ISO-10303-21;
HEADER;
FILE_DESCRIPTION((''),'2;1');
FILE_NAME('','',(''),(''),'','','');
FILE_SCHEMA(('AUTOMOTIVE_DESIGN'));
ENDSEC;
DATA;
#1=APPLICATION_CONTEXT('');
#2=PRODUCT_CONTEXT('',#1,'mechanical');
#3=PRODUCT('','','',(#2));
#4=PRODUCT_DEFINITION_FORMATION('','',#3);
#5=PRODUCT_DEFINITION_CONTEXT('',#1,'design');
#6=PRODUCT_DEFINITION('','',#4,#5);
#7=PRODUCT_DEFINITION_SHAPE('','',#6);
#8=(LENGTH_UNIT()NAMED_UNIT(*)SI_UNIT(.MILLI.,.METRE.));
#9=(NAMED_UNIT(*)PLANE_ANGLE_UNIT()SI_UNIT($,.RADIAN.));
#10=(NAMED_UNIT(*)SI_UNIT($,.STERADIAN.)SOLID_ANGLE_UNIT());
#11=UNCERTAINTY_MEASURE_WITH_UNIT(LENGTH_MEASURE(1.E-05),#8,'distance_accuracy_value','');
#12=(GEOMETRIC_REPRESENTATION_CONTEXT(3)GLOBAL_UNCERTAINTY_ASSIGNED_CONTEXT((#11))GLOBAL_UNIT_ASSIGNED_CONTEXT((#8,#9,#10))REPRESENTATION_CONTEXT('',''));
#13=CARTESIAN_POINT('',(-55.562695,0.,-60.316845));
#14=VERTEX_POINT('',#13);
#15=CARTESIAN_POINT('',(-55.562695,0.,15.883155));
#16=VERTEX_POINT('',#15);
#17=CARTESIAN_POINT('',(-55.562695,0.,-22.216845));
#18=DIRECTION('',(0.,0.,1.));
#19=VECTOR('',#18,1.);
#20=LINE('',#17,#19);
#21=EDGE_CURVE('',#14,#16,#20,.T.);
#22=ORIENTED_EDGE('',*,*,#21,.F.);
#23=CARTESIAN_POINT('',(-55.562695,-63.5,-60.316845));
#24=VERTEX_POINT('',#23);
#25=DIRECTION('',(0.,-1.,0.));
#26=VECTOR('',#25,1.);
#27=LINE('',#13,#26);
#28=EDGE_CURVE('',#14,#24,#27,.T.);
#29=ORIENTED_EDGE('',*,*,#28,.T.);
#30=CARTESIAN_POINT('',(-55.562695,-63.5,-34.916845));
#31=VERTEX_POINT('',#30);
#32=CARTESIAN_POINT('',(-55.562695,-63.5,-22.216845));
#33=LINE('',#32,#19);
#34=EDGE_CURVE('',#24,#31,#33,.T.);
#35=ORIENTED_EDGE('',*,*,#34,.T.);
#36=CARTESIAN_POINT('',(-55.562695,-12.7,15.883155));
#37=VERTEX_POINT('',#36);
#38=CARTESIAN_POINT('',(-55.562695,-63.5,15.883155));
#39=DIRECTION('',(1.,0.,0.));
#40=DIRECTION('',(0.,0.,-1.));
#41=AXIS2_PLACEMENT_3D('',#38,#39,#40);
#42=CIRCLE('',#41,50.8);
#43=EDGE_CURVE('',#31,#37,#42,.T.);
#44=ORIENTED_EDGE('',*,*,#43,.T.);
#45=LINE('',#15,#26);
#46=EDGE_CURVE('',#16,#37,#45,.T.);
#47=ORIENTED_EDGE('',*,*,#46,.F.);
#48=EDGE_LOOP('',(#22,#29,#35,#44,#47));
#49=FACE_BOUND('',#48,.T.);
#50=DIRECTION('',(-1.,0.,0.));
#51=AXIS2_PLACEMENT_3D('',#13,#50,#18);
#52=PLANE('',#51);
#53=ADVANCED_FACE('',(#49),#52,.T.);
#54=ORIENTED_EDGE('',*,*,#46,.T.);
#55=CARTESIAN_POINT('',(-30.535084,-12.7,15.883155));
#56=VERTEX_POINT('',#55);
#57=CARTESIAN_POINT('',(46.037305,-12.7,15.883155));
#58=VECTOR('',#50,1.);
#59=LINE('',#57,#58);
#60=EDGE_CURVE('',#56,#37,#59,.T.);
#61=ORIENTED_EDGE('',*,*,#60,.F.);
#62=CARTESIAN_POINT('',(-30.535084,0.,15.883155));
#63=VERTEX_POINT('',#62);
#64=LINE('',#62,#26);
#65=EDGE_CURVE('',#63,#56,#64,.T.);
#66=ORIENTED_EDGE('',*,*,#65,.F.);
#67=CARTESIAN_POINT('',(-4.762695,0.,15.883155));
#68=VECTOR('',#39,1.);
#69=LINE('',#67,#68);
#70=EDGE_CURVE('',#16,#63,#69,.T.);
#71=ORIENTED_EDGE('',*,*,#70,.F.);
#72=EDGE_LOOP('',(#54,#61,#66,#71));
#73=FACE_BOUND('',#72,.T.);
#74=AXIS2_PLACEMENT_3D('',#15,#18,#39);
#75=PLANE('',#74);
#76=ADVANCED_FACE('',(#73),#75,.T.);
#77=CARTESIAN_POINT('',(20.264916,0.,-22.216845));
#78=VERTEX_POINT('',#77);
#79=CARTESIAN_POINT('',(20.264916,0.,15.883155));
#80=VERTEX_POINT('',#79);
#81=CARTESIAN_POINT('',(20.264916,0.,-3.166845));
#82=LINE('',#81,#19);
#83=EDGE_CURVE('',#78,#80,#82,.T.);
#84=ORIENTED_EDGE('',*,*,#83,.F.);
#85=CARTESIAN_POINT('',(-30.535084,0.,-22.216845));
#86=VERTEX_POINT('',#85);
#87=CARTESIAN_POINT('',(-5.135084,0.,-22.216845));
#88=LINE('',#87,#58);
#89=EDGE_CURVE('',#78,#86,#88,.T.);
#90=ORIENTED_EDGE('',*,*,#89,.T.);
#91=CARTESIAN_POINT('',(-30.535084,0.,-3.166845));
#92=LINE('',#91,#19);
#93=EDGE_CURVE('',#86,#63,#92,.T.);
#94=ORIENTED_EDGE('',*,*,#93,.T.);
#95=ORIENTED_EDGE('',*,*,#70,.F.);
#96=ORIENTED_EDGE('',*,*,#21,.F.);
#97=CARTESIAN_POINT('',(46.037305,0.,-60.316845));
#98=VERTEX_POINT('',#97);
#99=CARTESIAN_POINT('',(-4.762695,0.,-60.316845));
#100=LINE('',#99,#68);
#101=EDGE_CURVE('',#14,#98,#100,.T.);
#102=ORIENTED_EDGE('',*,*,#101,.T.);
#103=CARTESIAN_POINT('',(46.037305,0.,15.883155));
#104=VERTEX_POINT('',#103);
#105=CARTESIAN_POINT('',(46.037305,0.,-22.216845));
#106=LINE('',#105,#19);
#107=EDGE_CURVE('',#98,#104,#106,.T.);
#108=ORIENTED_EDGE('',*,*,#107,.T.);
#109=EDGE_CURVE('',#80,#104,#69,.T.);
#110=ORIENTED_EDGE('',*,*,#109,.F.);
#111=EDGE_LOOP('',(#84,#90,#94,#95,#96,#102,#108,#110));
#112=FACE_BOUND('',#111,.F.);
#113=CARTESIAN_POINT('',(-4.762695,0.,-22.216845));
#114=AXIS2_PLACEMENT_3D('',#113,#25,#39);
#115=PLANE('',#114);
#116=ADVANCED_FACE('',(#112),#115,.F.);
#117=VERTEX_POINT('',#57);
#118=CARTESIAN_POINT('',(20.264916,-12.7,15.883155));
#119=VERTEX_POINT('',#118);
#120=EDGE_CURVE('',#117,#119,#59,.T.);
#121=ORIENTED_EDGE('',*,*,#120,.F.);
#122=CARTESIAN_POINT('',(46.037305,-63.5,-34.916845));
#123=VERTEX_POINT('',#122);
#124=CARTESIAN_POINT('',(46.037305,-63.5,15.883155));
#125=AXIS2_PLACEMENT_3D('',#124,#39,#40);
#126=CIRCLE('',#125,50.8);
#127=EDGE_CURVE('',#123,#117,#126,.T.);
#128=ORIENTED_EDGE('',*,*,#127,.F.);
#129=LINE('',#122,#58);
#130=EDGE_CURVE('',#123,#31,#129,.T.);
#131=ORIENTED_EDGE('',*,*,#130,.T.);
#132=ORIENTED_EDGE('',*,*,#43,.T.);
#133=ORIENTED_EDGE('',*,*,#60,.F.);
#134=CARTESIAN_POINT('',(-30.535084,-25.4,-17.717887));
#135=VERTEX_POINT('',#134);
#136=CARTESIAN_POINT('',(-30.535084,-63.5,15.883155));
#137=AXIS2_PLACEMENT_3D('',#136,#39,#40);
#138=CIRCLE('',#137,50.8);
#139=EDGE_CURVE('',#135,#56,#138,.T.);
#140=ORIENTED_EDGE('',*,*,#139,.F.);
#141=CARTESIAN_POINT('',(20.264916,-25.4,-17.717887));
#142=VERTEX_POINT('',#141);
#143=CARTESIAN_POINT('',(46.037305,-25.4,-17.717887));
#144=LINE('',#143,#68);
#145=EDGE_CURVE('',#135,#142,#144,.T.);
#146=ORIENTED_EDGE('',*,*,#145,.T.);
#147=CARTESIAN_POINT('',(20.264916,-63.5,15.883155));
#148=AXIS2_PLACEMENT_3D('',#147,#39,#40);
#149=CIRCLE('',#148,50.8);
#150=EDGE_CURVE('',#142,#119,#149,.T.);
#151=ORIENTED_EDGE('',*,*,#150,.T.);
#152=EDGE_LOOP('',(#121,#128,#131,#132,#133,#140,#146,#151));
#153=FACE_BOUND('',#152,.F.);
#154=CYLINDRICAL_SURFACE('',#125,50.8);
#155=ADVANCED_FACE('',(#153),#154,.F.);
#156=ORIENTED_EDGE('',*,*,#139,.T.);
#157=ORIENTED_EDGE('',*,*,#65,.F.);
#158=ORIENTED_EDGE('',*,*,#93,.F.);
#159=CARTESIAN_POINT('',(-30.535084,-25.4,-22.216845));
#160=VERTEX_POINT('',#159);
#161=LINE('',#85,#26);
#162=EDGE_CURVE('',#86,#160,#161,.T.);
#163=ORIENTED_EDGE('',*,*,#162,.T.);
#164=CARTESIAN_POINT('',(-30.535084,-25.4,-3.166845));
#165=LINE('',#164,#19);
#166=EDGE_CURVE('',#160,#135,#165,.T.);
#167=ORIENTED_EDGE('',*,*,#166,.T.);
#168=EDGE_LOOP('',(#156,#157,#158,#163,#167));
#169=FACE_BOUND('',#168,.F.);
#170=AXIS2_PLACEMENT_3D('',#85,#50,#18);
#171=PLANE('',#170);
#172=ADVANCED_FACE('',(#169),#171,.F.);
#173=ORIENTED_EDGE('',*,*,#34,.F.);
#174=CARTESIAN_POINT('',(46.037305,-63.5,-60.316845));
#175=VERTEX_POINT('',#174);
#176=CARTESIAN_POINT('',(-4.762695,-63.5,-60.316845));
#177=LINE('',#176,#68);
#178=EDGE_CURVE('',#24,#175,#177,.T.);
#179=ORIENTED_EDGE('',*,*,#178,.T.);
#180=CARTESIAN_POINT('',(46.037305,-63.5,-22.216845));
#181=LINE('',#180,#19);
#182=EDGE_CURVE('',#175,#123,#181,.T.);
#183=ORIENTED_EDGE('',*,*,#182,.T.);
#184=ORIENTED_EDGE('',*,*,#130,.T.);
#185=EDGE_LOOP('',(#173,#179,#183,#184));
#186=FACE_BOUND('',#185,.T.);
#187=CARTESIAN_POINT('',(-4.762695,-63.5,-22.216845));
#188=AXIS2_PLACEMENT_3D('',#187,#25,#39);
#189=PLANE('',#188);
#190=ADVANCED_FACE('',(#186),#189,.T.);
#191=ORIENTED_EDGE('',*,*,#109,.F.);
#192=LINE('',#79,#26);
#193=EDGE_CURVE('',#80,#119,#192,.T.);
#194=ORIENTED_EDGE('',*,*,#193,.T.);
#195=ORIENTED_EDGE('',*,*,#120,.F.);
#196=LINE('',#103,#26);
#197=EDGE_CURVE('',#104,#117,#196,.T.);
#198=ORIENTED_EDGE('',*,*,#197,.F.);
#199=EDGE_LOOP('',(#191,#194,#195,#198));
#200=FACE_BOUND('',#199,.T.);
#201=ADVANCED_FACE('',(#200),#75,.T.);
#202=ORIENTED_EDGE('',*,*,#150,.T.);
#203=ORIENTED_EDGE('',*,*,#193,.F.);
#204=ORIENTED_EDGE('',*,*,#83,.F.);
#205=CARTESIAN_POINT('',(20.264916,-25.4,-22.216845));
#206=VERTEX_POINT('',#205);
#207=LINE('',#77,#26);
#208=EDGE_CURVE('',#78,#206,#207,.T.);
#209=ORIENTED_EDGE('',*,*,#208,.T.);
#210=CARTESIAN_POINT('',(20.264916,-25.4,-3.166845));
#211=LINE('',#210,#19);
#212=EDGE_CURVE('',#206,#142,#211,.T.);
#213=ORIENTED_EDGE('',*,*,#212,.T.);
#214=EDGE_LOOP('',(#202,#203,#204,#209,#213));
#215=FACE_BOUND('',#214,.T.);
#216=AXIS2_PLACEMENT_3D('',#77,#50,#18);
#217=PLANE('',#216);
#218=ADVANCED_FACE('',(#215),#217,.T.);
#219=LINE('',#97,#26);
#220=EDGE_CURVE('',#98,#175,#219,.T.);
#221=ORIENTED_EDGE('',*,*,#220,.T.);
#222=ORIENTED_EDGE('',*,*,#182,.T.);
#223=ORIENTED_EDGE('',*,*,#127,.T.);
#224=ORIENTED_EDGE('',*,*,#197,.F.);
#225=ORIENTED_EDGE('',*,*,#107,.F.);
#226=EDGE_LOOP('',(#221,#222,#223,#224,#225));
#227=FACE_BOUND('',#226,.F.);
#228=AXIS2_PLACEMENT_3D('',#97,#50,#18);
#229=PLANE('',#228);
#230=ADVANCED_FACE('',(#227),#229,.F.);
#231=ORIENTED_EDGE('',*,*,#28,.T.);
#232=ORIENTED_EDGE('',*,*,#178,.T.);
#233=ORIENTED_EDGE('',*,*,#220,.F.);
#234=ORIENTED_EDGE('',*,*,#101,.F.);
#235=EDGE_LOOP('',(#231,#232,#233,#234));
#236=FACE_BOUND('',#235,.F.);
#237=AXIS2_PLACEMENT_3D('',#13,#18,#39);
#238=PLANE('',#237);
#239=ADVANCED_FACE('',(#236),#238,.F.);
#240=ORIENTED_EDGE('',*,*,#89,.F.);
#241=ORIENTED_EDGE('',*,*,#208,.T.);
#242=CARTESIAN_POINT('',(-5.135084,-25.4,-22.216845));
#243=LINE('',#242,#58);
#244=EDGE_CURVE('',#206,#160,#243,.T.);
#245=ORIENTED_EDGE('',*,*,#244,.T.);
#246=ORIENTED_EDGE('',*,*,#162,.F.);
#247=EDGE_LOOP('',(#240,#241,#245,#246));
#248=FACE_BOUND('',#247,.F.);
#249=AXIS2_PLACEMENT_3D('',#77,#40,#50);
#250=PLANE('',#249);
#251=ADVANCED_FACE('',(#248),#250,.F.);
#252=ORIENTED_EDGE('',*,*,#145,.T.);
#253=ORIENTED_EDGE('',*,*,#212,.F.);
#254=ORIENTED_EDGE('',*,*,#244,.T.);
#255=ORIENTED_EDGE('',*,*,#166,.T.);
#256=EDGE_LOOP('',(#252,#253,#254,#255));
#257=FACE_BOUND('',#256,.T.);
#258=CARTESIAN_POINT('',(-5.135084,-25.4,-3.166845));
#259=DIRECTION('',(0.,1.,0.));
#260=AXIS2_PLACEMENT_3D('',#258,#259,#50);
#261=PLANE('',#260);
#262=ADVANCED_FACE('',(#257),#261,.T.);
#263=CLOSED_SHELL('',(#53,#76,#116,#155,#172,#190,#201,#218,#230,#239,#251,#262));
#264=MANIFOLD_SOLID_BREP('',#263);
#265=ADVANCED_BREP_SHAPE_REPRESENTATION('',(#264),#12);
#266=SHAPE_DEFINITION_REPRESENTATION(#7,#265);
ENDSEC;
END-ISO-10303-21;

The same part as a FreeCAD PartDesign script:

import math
import FreeCAD as App
import Part
import Sketcher

V = App.Vector
Q = App.Units.Quantity


def add_polygon(sketch, points):
    """Adds a closed chain of lines whose ends are joined by coincident constraints."""
    first, n = sketch.GeometryCount, len(points)
    for a, b in zip(points, points[1:] + points[:1]):
        sketch.addGeometry(Part.LineSegment(App.Vector(*a, 0), App.Vector(*b, 0)), False)
    for i in range(n):
        sketch.addConstraint(Sketcher.Constraint("Coincident", first + i, 2, first + (i + 1) % n, 1))

doc = App.newDocument("Part")
body = doc.addObject("PartDesign::Body", "Body")

sketch1 = body.newObject("Sketcher::SketchObject", "Sketch")
sketch1.AttachmentSupport = (doc.getObject("XZ_Plane"), [""])
sketch1.MapMode = "FlatFace"
add_polygon(sketch1, [(-55.562695, 15.883155), (-55.562695, -60.316845), (46.037305, -60.316845), (46.037305, 15.883155)])
sketch1.addConstraint([
    Sketcher.Constraint("Vertical", 0),
    Sketcher.Constraint("Horizontal", 1),
    Sketcher.Constraint("Vertical", 2),
    Sketcher.Constraint("Horizontal", 3),
    Sketcher.Constraint("DistanceX", 1, 1, 1, 2, Q("4 in")),
    Sketcher.Constraint("DistanceY", 0, 2, 0, 1, Q("3 in")),
    Sketcher.Constraint("DistanceX", 0, 2, -1, 1, 55.562695),
    Sketcher.Constraint("DistanceY", 0, 2, -1, 1, 60.316845),
])
pad1 = body.newObject("PartDesign::Pad", "Pad")
pad1.Profile = sketch1
pad1.Length = Q("2.5 in")

sketch2 = body.newObject("Sketcher::SketchObject", "Sketch001")
sketch2.AttachmentSupport = (doc.getObject("YZ_Plane"), [""])
sketch2.MapMode = "FlatFace"
sketch2.AttachmentOffset = App.Placement(V(0, 0, 46.037305), App.Rotation())
sketch2.addGeometry([
    Part.ArcOfCircle(Part.Circle(V(-63.5, 15.883155, 0), V(0, 0, 1), 50.8), math.radians(-90), math.radians(0)),
    Part.LineSegment(V(-12.7, 15.883155, 0), V(-63.5, 15.883155, 0)),
    Part.LineSegment(V(-63.5, 15.883155, 0), V(-63.5, -34.916845, 0)),
], False)
sketch2.addConstraint([
    Sketcher.Constraint("Coincident", 0, 2, 1, 1),
    Sketcher.Constraint("Coincident", 1, 2, 2, 1),
    Sketcher.Constraint("Coincident", 2, 2, 0, 1),
    Sketcher.Constraint("Horizontal", 1),
    Sketcher.Constraint("Vertical", 2),
    Sketcher.Constraint("Coincident", 1, 2, 0, 3),
    Sketcher.Constraint("Radius", 0, Q("2 in")),
    Sketcher.Constraint("DistanceX", 0, 3, -1, 1, Q("2.5 in")),
    Sketcher.Constraint("DistanceY", -1, 1, 0, 3, 15.883155),
])
pocket1 = body.newObject("PartDesign::Pocket", "Pocket")
pocket1.Profile = sketch2
pocket1.Length = Q("4 in")

sketch3 = body.newObject("Sketcher::SketchObject", "Sketch002")
sketch3.AttachmentSupport = (doc.getObject("XZ_Plane"), [""])
sketch3.MapMode = "FlatFace"
add_polygon(sketch3, [(20.264916, 15.883155), (20.264916, -22.216845), (-30.535084, -22.216845), (-30.535084, 15.883155)])
sketch3.addConstraint([
    Sketcher.Constraint("Vertical", 0),
    Sketcher.Constraint("Horizontal", 1),
    Sketcher.Constraint("Vertical", 2),
    Sketcher.Constraint("Horizontal", 3),
    Sketcher.Constraint("DistanceX", 1, 2, 1, 1, Q("2 in")),
    Sketcher.Constraint("DistanceY", 0, 2, 0, 1, Q("1.5 in")),
    Sketcher.Constraint("DistanceX", -1, 1, 0, 2, 20.264916),
    Sketcher.Constraint("DistanceY", 0, 2, -1, 1, 22.216845),
])
pocket2 = body.newObject("PartDesign::Pocket", "Pocket001")
pocket2.Profile = sketch3
pocket2.Length = Q("1 in")
pocket2.Reversed = True

doc.recompute()
